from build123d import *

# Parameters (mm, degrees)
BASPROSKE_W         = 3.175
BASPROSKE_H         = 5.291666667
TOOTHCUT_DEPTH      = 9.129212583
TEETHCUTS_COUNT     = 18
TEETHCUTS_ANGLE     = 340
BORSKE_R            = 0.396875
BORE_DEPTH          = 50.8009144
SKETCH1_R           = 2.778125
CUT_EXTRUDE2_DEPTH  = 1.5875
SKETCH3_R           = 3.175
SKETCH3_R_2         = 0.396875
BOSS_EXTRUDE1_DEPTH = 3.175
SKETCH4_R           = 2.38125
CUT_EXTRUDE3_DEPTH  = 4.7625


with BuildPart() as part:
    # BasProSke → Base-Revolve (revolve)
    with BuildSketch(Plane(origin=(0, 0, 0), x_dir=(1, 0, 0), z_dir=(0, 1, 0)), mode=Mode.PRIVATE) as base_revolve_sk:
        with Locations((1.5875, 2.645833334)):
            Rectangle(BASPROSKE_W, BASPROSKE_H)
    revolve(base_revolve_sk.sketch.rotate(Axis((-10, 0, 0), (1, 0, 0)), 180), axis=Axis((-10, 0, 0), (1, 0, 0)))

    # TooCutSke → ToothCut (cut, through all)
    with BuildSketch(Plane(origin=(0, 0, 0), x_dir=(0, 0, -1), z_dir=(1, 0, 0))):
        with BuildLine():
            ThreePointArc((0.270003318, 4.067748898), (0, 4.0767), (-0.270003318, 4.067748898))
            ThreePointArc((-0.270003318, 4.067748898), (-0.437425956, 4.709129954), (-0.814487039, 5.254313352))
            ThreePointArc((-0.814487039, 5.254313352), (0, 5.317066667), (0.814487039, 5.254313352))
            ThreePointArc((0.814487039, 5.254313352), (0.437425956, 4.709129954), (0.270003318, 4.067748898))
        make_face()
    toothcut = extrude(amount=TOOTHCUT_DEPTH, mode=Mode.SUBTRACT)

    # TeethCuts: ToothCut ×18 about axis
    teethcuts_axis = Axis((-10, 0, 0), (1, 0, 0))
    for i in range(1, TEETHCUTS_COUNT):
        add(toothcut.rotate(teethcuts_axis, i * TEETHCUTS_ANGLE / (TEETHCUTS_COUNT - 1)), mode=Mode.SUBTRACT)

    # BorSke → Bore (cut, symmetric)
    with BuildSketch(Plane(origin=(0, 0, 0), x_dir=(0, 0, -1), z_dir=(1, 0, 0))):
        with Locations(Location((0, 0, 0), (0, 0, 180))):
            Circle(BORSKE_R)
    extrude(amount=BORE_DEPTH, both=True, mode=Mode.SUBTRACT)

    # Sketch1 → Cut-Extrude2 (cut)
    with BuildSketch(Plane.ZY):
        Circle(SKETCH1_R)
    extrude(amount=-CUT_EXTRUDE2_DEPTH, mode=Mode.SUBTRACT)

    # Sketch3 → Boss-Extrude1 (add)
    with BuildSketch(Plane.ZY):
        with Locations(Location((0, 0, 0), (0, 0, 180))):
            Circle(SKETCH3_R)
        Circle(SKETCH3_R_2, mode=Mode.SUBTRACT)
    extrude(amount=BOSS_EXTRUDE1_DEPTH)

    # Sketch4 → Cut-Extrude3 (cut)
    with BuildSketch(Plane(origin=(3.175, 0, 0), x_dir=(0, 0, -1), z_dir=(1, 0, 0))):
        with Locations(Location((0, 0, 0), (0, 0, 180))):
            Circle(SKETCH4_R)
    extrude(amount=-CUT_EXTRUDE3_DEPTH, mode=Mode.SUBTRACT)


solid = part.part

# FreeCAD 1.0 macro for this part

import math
import FreeCAD as App
import Part
import Sketcher

V = App.Vector
Q = App.Units.Quantity

doc = App.newDocument("Part")
body = doc.addObject("PartDesign::Body", "Body")

# Sketch on XZ plane
sketch1 = body.newObject("Sketcher::SketchObject", "Sketch")
sketch1.AttachmentSupport = (doc.getObject("XZ_Plane"), [""])
sketch1.MapMode = "FlatFace"
sketch1.addGeometry([
    Part.LineSegment(V(0, -5.3, 0), V(0, 0, 0)),
    Part.LineSegment(V(0, 0, 0), V(3.2, 0, 0)),
    Part.LineSegment(V(3.2, 0, 0), V(3.2, -5.3, 0)),
    Part.LineSegment(V(3.2, -5.3, 0), V(0, -5.3, 0)),
], False)
sketch1.addConstraint([
    Sketcher.Constraint("Coincident", 0, 2, 1, 1),
    Sketcher.Constraint("Coincident", 1, 2, 2, 1),
    Sketcher.Constraint("Coincident", 2, 2, 3, 1),
    Sketcher.Constraint("Coincident", 3, 2, 0, 1),
    Sketcher.Constraint("Vertical", 0),
    Sketcher.Constraint("Horizontal", 1),
    Sketcher.Constraint("Vertical", 2),
    Sketcher.Constraint("Horizontal", 3),
    Sketcher.Constraint("Coincident", 0, 2, -1, 1),
    Sketcher.Constraint("DistanceX", 1, 1, 1, 2, Q("0.125 in")),
    Sketcher.Constraint("DistanceY", 0, 1, 0, 2, Q("5.291667 mm")),
])
revolution = body.newObject("PartDesign::Revolution", "Revolution")
revolution.Profile = sketch1
revolution.ReferenceAxis = (sketch1, ["H_Axis"])
revolution.Angle = 360

# Sketch on YZ plane
sketch2 = body.newObject("Sketcher::SketchObject", "Sketch001")
sketch2.AttachmentSupport = (doc.getObject("YZ_Plane"), [""])
sketch2.MapMode = "FlatFace"
sketch2.addGeometry([
    Part.ArcOfCircle(Part.Circle(V(0, 0, 0), V(0, 0, 1), 4.1), math.radians(-3.8), math.radians(3.8)),
    Part.ArcOfCircle(Part.Circle(V(3.9, -2.2, 0), V(0, 0, 1), 1.9), math.radians(45), math.radians(85)),
    Part.ArcOfCircle(Part.Circle(V(0, 0, 0), V(0, 0, 1), 5.3), math.radians(-8.81), math.radians(8.81)),
    Part.ArcOfCircle(Part.Circle(V(3.9, 2.2, 0), V(0, 0, 1), 1.9), math.radians(-85), math.radians(-45)),
], False)
sketch2.addConstraint([
    Sketcher.Constraint("Coincident", 0, 1, 1, 2),
    Sketcher.Constraint("Coincident", 1, 1, 2, 1),
    Sketcher.Constraint("Coincident", 2, 2, 3, 2),
    Sketcher.Constraint("Coincident", 3, 1, 0, 2),
    Sketcher.Constraint("Coincident", 0, 3, -1, 1),
    Sketcher.Constraint("Coincident", 2, 3, -1, 1),
    Sketcher.Constraint("Equal", 1, 3),
    Sketcher.Constraint("Symmetric", 1, 3, 3, 3, -1),
    Sketcher.Constraint("Radius", 1, Q("0.075 in")),
    Sketcher.Constraint("Radius", 0, Q("0.1605 in")),
    Sketcher.Constraint("Radius", 2, Q("5.317067 mm")),
    Sketcher.Constraint("DistanceX", -1, 1, 1, 3, Q("3.914629 mm")),
    Sketcher.Constraint("DistanceY", 1, 3, -1, 1, Q("2.16884 mm")),
])
pocket1 = body.newObject("PartDesign::Pocket", "Pocket")
pocket1.Profile = sketch2
pocket1.Type = "ThroughAll"
pocket1.Reversed = True
doc.recompute()

polarpattern = body.newObject("PartDesign::PolarPattern", "PolarPattern")
polarpattern.Originals = [pocket1]
polarpattern.Axis = (doc.getObject("X_Axis"), [""])
polarpattern.Angle = 360
polarpattern.Occurrences = 18
body.Tip = polarpattern

# Sketch on YZ plane
sketch3 = body.newObject("Sketcher::SketchObject", "Sketch002")
sketch3.AttachmentSupport = (doc.getObject("YZ_Plane"), [""])
sketch3.MapMode = "FlatFace"
sketch3.addGeometry(Part.Circle(V(0, 0, 0), V(0, 0, 1), 0.4), False)
sketch3.addConstraint([
    Sketcher.Constraint("Coincident", 0, 3, -1, 1),
    Sketcher.Constraint("Diameter", 0, Q("0.03125 in")),
])
pocket2 = body.newObject("PartDesign::Pocket", "Pocket001")
pocket2.Profile = sketch3
pocket2.Length = 101.601829
pocket2.Midplane = True

# Sketch on YZ plane
sketch4 = body.newObject("Sketcher::SketchObject", "Sketch003")
sketch4.AttachmentSupport = (doc.getObject("YZ_Plane"), [""])
sketch4.MapMode = "FlatFace"
sketch4.addGeometry(Part.Circle(V(0, 0, 0), V(0, 0, 1), 2.8), False)
sketch4.addConstraint([
    Sketcher.Constraint("Coincident", 0, 3, -1, 1),
    Sketcher.Constraint("Diameter", 0, Q("0.21875 in")),
])
pocket3 = body.newObject("PartDesign::Pocket", "Pocket002")
pocket3.Profile = sketch4
pocket3.Length = Q("0.0625 in")
pocket3.Reversed = True

# Sketch on YZ plane
sketch5 = body.newObject("Sketcher::SketchObject", "Sketch004")
sketch5.AttachmentSupport = (doc.getObject("YZ_Plane"), [""])
sketch5.MapMode = "FlatFace"
sketch5.addGeometry([
    Part.Circle(V(0, 0, 0), V(0, 0, 1), 3.17),
    Part.Circle(V(0, 0, 0), V(0, 0, 1), 0.4),
], False)
sketch5.addConstraint([
    Sketcher.Constraint("Coincident", 0, 3, -1, 1),
    Sketcher.Constraint("Coincident", 1, 3, -1, 1),
    Sketcher.Constraint("Diameter", 0, Q("0.25 in")),
    Sketcher.Constraint("Diameter", 1, Q("0.03125 in")),
])
pad1 = body.newObject("PartDesign::Pad", "Pad")
pad1.Profile = sketch5
pad1.Length = Q("0.125 in")
pad1.Reversed = True

# Sketch on YZ plane
sketch6 = body.newObject("Sketcher::SketchObject", "Sketch005")
sketch6.AttachmentSupport = (doc.getObject("YZ_Plane"), [""])
sketch6.MapMode = "FlatFace"
sketch6.AttachmentOffset = App.Placement(V(0, 0, 0.125 * 25.4), App.Rotation())
sketch6.addGeometry(Part.Circle(V(0, 0, 0), V(0, 0, 1), 2.4), False)
sketch6.addConstraint([
    Sketcher.Constraint("Coincident", 0, 3, -1, 1),
    Sketcher.Constraint("Diameter", 0, Q("0.1875 in")),
])
pocket4 = body.newObject("PartDesign::Pocket", "Pocket003")
pocket4.Profile = sketch6
pocket4.Length = Q("0.1875 in")

doc.recompute()
